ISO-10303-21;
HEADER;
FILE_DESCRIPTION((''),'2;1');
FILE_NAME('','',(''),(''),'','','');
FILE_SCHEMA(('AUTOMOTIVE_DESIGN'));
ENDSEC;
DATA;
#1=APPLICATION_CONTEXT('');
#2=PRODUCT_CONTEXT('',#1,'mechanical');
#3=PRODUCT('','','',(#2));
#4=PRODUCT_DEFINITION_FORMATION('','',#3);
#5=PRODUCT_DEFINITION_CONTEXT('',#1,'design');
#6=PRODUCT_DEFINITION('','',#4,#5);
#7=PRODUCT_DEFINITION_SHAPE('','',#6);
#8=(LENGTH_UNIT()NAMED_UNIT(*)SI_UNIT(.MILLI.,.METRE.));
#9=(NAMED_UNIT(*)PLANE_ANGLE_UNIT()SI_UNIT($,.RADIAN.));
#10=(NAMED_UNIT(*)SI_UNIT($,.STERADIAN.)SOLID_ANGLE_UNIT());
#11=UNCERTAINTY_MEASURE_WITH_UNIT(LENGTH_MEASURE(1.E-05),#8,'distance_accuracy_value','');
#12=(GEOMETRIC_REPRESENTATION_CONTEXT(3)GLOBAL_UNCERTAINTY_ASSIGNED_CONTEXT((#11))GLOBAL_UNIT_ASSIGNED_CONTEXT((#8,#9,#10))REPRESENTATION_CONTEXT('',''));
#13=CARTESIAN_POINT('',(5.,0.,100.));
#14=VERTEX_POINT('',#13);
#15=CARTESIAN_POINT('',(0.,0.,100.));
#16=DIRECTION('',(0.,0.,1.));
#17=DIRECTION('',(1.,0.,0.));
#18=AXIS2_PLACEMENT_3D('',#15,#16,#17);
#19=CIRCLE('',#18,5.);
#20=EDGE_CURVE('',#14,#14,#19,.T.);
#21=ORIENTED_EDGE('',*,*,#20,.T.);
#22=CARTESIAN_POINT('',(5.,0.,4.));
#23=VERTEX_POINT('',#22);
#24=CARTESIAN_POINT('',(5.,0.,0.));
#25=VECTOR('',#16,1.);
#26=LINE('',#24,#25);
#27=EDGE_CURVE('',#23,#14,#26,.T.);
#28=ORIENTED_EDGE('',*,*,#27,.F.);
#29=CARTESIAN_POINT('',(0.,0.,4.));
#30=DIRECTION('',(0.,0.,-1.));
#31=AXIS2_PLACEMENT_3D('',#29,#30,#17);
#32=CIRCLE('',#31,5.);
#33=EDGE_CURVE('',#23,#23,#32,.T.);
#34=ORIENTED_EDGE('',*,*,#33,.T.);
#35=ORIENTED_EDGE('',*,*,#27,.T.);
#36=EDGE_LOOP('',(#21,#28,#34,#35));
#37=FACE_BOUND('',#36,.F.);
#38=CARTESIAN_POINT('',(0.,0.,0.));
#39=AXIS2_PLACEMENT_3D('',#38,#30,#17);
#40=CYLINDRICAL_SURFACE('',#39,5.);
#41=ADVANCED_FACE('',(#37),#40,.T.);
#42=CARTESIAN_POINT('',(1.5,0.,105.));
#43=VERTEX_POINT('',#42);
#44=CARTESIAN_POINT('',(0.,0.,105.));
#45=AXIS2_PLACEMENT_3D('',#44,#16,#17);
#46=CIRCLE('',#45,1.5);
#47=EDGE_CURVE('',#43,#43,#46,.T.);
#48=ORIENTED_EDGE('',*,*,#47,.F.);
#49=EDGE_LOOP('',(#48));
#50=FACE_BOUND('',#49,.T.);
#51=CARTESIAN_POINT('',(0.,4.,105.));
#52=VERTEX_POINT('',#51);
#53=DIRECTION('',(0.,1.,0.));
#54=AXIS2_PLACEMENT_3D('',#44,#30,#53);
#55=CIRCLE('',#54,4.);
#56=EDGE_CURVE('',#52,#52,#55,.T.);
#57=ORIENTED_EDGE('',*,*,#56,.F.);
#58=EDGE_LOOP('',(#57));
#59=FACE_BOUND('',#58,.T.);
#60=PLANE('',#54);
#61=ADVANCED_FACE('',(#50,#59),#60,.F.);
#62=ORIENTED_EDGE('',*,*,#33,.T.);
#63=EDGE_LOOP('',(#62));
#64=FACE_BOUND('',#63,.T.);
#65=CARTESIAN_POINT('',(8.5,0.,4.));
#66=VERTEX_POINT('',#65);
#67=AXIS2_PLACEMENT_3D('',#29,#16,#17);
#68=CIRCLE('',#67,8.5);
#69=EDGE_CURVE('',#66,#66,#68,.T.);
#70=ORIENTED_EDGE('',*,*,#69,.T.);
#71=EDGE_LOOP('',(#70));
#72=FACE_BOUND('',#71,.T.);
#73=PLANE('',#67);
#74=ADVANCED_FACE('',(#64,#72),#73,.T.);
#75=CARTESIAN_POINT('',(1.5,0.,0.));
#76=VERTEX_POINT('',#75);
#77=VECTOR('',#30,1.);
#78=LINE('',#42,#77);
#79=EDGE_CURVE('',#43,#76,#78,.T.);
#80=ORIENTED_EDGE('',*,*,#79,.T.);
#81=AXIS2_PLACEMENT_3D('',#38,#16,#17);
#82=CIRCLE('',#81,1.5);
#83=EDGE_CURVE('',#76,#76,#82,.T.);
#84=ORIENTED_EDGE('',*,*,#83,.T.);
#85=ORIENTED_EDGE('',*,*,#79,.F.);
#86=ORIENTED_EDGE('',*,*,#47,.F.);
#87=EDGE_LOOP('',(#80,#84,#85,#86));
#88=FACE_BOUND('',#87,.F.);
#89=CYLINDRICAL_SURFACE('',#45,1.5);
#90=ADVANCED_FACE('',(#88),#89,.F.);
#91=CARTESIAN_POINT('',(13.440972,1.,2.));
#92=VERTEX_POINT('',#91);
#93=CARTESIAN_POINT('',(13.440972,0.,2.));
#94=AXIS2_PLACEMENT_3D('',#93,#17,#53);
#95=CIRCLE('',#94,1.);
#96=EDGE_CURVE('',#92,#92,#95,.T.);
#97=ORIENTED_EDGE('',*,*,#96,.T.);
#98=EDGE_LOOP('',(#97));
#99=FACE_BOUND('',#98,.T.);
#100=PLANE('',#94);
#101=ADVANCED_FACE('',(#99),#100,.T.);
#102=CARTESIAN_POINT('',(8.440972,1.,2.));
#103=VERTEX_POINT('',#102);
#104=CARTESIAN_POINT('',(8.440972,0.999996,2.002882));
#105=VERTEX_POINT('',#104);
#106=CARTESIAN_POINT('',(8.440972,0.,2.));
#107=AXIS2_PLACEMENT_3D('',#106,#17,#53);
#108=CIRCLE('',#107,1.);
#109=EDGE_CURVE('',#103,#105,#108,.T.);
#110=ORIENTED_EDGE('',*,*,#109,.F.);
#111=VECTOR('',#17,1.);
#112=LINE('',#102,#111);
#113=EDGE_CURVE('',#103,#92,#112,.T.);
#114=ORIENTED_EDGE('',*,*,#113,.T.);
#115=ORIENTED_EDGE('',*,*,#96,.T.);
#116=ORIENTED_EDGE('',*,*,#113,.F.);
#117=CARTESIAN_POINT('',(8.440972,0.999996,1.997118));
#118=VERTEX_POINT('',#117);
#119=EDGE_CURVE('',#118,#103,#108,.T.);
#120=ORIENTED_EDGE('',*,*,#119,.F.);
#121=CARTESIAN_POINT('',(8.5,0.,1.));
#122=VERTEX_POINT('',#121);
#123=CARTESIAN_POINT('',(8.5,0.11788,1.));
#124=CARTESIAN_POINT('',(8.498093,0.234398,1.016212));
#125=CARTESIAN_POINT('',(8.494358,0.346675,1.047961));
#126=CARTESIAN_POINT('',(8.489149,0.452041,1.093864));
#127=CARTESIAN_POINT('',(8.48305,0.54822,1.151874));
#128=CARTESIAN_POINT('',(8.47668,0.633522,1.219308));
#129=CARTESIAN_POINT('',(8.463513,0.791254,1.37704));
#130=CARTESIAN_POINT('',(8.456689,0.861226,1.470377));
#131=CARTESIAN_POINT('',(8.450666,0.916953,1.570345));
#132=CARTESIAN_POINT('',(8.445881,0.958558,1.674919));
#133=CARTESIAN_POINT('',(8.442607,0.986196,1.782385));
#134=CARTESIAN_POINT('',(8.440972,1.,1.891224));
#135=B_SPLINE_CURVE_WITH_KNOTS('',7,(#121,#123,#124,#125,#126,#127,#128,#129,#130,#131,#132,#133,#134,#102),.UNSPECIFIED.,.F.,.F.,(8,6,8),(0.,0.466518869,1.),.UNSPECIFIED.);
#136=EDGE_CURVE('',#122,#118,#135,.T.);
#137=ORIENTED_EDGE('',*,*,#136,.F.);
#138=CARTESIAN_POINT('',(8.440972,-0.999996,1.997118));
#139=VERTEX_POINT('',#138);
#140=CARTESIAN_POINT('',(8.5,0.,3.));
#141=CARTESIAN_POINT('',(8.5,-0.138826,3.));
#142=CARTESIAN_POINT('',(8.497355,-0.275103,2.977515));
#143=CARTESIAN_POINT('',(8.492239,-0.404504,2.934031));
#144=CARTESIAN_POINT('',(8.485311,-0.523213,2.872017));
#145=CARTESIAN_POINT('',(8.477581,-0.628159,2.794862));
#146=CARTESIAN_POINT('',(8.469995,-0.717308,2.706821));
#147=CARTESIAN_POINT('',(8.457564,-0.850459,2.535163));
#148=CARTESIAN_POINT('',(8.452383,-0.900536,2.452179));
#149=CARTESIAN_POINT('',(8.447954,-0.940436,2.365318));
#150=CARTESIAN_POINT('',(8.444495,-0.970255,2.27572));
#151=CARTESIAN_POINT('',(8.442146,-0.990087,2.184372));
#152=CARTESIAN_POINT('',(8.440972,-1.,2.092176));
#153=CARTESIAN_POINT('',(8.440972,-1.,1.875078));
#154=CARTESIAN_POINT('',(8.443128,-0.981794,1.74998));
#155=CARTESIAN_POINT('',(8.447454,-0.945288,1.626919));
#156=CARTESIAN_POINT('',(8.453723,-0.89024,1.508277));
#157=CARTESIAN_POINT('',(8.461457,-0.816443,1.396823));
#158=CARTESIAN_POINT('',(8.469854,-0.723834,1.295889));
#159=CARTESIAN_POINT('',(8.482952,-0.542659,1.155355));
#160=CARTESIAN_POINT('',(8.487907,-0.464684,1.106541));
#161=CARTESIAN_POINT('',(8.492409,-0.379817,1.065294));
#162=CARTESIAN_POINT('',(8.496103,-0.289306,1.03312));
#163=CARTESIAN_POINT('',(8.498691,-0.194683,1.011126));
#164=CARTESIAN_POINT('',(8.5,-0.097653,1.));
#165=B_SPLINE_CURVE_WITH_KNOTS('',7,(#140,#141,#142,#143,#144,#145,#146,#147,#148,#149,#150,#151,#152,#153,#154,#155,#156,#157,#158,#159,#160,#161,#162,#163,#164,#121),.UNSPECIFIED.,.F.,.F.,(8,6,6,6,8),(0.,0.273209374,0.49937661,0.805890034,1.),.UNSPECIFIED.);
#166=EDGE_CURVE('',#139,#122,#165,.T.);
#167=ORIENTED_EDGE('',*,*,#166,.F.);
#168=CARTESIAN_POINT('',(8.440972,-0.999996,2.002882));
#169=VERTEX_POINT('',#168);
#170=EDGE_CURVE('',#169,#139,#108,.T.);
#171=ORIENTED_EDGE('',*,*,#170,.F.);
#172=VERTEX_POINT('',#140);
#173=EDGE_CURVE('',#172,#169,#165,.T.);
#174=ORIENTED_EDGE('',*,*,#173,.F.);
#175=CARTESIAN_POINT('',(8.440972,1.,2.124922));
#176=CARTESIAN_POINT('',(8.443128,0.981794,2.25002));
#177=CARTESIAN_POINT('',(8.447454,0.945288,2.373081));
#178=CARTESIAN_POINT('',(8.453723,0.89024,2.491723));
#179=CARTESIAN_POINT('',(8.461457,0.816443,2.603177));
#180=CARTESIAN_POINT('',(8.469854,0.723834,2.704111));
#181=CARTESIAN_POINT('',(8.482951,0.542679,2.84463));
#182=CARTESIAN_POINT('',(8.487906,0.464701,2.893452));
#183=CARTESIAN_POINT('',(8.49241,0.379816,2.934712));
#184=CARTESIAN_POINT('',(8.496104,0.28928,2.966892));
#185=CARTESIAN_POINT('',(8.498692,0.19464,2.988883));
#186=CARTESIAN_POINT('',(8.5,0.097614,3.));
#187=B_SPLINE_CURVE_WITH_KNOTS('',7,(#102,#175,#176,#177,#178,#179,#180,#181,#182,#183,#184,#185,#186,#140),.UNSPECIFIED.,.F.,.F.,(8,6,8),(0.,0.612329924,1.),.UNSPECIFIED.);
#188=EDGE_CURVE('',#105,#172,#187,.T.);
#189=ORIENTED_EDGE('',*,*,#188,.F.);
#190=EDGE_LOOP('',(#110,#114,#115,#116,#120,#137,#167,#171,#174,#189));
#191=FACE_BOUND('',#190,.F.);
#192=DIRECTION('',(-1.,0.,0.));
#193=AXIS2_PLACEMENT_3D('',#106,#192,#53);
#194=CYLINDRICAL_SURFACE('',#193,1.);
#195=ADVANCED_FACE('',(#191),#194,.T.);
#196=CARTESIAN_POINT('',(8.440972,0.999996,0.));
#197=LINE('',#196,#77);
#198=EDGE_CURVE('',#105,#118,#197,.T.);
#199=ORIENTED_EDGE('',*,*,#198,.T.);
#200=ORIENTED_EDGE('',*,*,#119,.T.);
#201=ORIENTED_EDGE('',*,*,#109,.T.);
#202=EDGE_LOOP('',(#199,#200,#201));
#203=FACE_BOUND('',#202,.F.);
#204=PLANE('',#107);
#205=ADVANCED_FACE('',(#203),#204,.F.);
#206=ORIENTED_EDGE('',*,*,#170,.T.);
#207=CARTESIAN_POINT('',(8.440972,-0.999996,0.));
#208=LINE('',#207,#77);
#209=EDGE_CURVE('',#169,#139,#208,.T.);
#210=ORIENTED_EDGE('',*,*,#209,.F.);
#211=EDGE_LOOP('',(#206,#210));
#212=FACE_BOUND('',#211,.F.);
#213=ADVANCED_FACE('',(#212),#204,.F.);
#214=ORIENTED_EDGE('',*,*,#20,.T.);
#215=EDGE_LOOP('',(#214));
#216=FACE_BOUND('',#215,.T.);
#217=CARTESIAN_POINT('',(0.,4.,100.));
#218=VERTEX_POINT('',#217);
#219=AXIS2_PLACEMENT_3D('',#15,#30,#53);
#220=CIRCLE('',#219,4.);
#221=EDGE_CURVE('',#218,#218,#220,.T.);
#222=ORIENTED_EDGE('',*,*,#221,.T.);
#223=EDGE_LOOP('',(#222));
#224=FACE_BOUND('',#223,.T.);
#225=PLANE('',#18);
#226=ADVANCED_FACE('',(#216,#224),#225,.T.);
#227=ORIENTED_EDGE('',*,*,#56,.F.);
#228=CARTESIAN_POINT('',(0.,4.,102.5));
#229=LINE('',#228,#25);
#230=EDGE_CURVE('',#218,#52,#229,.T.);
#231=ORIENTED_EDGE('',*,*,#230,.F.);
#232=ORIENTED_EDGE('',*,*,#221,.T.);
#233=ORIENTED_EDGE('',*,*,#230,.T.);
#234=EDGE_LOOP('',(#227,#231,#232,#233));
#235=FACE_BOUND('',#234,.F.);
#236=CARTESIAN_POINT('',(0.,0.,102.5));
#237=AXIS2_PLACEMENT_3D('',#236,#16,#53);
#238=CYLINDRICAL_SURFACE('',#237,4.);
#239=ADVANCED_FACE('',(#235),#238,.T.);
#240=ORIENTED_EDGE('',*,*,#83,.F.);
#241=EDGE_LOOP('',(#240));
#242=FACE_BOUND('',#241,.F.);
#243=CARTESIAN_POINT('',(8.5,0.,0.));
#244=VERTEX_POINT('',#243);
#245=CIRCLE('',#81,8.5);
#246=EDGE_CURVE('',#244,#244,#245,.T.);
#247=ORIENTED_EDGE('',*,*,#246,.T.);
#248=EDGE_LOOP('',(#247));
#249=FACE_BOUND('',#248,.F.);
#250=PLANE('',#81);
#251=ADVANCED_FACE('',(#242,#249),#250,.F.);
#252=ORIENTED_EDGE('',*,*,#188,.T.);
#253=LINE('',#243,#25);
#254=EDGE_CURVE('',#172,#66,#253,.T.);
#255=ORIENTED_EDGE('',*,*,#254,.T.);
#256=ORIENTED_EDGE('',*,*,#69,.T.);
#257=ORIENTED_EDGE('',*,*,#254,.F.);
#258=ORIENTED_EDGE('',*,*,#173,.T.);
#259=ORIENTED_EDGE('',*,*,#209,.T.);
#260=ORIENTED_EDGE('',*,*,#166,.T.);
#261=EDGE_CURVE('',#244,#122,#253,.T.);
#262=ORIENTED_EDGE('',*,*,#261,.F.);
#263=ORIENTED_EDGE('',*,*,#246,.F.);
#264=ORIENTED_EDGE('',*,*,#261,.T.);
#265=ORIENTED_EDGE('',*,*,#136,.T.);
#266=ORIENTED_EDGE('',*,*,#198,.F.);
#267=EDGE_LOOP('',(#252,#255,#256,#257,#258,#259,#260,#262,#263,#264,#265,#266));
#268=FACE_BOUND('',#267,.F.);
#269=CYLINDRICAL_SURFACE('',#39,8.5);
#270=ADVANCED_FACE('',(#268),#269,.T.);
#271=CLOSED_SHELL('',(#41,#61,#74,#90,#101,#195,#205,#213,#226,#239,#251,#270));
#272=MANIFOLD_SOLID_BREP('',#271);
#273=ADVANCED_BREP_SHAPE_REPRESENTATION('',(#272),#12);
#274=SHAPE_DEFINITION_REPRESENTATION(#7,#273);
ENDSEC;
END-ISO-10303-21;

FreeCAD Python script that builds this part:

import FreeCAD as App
import Part
import Sketcher
from FreeCAD import Vector


def add_polygon(sketch, points):
    """Adds a closed chain of lines whose ends are joined by coincident constraints."""
    first, n = sketch.GeometryCount, len(points)
    for a, b in zip(points, points[1:] + points[:1]):
        sketch.addGeometry(Part.LineSegment(App.Vector(*a, 0), App.Vector(*b, 0)), False)
    for i in range(n):
        sketch.addConstraint(Sketcher.Constraint("Coincident", first + i, 2, first + (i + 1) % n, 1))

doc = App.newDocument("Part")
params = doc.addObject("Spreadsheet::Sheet", "Params")
for row, (alias, value) in enumerate([
    ("sketch1_diameter", "17 mm"),
    ("pad1_length", "4 mm"),
    ("sketch2_diameter", "10 mm"),
    ("pad2_length", "100 mm"),
    ("sketch3_width", "4 mm"),
    ("sketch3_height", "5 mm"),
    ("revolution_angle", "360 deg"),
    ("sketch4_diameter", "2 mm"),
    ("pad3_length", "5 mm"),
    ("sketch5_diameter", "3 mm"),
    ("pocket1_length", "128.4 mm"),
], start=1):
    params.set(f"A{row}", alias)
    params.set(f"B{row}", "=" + value)
    params.setAlias(f"B{row}", alias)

body = doc.addObject("PartDesign::Body", "Body")

# Sketch on XY plane
sketch1 = body.newObject("Sketcher::SketchObject", "Sketch")
sketch1.AttachmentSupport = (doc.getObject("XY_Plane"), [""])
sketch1.MapMode = "FlatFace"
sketch1.addGeometry(Part.Circle(Vector(0, 0, 0), Vector(0, 0, 1), 8), False)
sketch1.addConstraint(Sketcher.Constraint("Coincident", 0, 3, -1, 1))
sketch1.addConstraint(Sketcher.Constraint("Diameter", 0, 17.0))
sketch1.setExpression("Constraints[1]", "Params.sketch1_diameter")
pad1 = body.newObject("PartDesign::Pad", "Pad")
pad1.Profile = sketch1
pad1.setExpression("Length", "Params.pad1_length")

# Sketch on XY plane
sketch2 = body.newObject("Sketcher::SketchObject", "Sketch001")
sketch2.AttachmentSupport = (doc.getObject("XY_Plane"), [""])
sketch2.MapMode = "FlatFace"
sketch2.addGeometry(Part.Circle(Vector(0, 0, 0), Vector(0, 0, 1), 5), False)
sketch2.addConstraint(Sketcher.Constraint("Coincident", 0, 3, -1, 1))
sketch2.addConstraint(Sketcher.Constraint("Diameter", 0, 10.0))
sketch2.setExpression("Constraints[1]", "Params.sketch2_diameter")
pad2 = body.newObject("PartDesign::Pad", "Pad001")
pad2.Profile = sketch2
pad2.setExpression("Length", "Params.pad2_length")

# Sketch on YZ plane
sketch3 = body.newObject("Sketcher::SketchObject", "Sketch002")
sketch3.AttachmentSupport = (doc.getObject("YZ_Plane"), [""])
sketch3.MapMode = "FlatFace"
add_polygon(sketch3, [(0, 105), (0, 100), (4, 100), (4, 105)])  # lines 0-3
sketch3.addConstraint(Sketcher.Constraint("Vertical", 0))
sketch3.addConstraint(Sketcher.Constraint("Horizontal", 1))
sketch3.addConstraint(Sketcher.Constraint("Vertical", 2))
sketch3.addConstraint(Sketcher.Constraint("Horizontal", 3))
sketch3.addConstraint(Sketcher.Constraint("PointOnObject", 0, 2, -2))
sketch3.addConstraint(Sketcher.Constraint("DistanceX", 1, 1, 1, 2, 4.0))
sketch3.addConstraint(Sketcher.Constraint("DistanceY", 0, 2, 0, 1, 5.0))
sketch3.addConstraint(Sketcher.Constraint("DistanceY", -1, 1, 0, 2, 100.0))
sketch3.setExpression("Constraints[9]", "Params.sketch3_width")
sketch3.setExpression("Constraints[10]", "Params.sketch3_height")
revolution = body.newObject("PartDesign::Revolution", "Revolution")
revolution.Profile = sketch3
revolution.ReferenceAxis = (sketch3, ["V_Axis"])
revolution.setExpression("Angle", "Params.revolution_angle")

# Sketch on YZ plane
sketch4 = body.newObject("Sketcher::SketchObject", "Sketch003")
sketch4.AttachmentSupport = (doc.getObject("YZ_Plane"), [""])
sketch4.MapMode = "FlatFace"
sketch4.AttachmentOffset = App.Placement(Vector(0, 0, 8.440972), App.Rotation())
sketch4.addGeometry(Part.Circle(Vector(0, 2, 0), Vector(0, 0, 1), 1), False)
sketch4.addConstraint(Sketcher.Constraint("PointOnObject", 0, 3, -2))
sketch4.addConstraint(Sketcher.Constraint("Diameter", 0, 2.0))
sketch4.addConstraint(Sketcher.Constraint("DistanceY", -1, 1, 0, 3, 2.0))
sketch4.setExpression("Constraints[1]", "Params.sketch4_diameter")
pad3 = body.newObject("PartDesign::Pad", "Pad002")
pad3.Profile = sketch4
pad3.setExpression("Length", "Params.pad3_length")

# Sketch on XY plane
sketch5 = body.newObject("Sketcher::SketchObject", "Sketch004")
sketch5.AttachmentSupport = (doc.getObject("XY_Plane"), [""])
sketch5.MapMode = "FlatFace"
sketch5.AttachmentOffset = App.Placement(Vector(0, 0, 105), App.Rotation())
sketch5.addGeometry(Part.Circle(Vector(0, 0, 0), Vector(0, 0, 1), 1.5), False)
sketch5.addConstraint(Sketcher.Constraint("Coincident", 0, 3, -1, 1))
sketch5.addConstraint(Sketcher.Constraint("Diameter", 0, 3.0))
sketch5.setExpression("Constraints[1]", "Params.sketch5_diameter")
pocket1 = body.newObject("PartDesign::Pocket", "Pocket")
pocket1.Profile = sketch5
pocket1.setExpression("Length", "Params.pocket1_length")

doc.recompute()
